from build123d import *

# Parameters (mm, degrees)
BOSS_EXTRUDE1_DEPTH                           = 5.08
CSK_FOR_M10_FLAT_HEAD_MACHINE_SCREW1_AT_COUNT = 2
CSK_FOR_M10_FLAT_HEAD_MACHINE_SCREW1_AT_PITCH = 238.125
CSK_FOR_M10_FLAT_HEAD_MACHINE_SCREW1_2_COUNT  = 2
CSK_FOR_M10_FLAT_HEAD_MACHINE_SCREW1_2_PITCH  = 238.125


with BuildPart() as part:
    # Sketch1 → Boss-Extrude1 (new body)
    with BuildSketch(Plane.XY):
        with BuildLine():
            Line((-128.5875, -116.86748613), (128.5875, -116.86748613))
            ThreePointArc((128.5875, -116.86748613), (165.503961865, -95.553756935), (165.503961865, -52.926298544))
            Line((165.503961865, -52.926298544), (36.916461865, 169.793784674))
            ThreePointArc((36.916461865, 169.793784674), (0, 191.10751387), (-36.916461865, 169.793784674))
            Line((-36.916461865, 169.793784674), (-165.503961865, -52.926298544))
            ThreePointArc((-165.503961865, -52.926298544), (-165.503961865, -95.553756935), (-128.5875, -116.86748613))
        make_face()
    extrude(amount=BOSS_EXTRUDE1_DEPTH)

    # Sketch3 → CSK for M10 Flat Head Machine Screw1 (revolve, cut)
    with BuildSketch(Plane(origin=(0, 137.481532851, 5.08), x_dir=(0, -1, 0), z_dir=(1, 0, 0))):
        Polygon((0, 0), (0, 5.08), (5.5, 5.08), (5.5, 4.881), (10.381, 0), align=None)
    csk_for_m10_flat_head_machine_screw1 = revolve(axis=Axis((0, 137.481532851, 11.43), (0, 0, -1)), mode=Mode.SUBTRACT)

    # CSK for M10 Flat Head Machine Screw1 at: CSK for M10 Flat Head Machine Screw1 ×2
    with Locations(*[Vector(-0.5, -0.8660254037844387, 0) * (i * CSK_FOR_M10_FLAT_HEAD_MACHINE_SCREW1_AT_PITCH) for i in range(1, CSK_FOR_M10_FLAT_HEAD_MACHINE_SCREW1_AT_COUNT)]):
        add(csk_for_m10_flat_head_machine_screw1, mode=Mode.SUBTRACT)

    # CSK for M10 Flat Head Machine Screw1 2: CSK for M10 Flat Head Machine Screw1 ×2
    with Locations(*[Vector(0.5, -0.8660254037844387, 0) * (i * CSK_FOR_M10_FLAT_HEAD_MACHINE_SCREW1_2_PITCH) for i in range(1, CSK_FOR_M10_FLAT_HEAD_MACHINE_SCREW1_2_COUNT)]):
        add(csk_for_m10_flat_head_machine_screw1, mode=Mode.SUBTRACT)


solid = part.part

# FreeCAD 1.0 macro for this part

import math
import FreeCAD as App
import Part
import Sketcher

V = App.Vector
Q = App.Units.Quantity


def add_polygon(sketch, points):
    """Adds a closed chain of lines whose ends are joined by coincident constraints."""
    first, n = sketch.GeometryCount, len(points)
    for a, b in zip(points, points[1:] + points[:1]):
        sketch.addGeometry(Part.LineSegment(App.Vector(*a, 0), App.Vector(*b, 0)), False)
    for i in range(n):
        sketch.addConstraint(Sketcher.Constraint("Coincident", first + i, 2, first + (i + 1) % n, 1))

doc = App.newDocument("Part")
body = doc.addObject("PartDesign::Body", "Body")

# Sketch on XY plane
sketch1 = doc.addObject("Sketcher::SketchObject", "Sketch")
body.addObject(sketch1)
sketch1.AttachmentSupport = (doc.XY_Plane, [""])
sketch1.MapMode = "FlatFace"
sketch1.addGeometry([
    Part.LineSegment(V(-128.5875, -116.867486, 0), V(128.5875, -116.867486, 0)),  # 0
    Part.ArcOfCircle(Part.Circle(V(128.5875, -74.240028, 0), V(0, 0, 1), 42.627458), math.radians(-90), math.radians(30)),  # 1
    Part.LineSegment(V(165.503962, -52.926299, 0), V(36.916462, 169.793785, 0)),  # 2
    Part.ArcOfCircle(Part.Circle(V(0, 148.480055, 0), V(0, 0, 1), 42.627458), math.radians(30), math.radians(150)),  # 3
    Part.LineSegment(V(-36.916462, 169.793785, 0), V(-165.503962, -52.926299, 0)),  # 4
    Part.ArcOfCircle(Part.Circle(V(-128.5875, -74.240028, 0), V(0, 0, 1), 42.627458), math.radians(150), math.radians(270)),  # 5
], False)
sketch1.addConstraint([
    Sketcher.Constraint("Tangent", 0, 2, 1, 1),
    Sketcher.Constraint("Tangent", 1, 2, 2, 1),
    Sketcher.Constraint("Tangent", 2, 2, 3, 1),
    Sketcher.Constraint("Tangent", 3, 2, 4, 1),
    Sketcher.Constraint("Tangent", 4, 2, 5, 1),
    Sketcher.Constraint("Tangent", 5, 2, 0, 1),
    Sketcher.Constraint("Horizontal", 0),
    Sketcher.Constraint("Equal", 1, 3),
    Sketcher.Constraint("Equal", 3, 5),
    Sketcher.Constraint("Symmetric", 2, 2, 3, 2, -2),
    Sketcher.Constraint("Angle", 2, Q("120 deg")),
    Sketcher.Constraint("DistanceX", 0, 1, 0, 2, Q("10.125 in")),
    Sketcher.Constraint("Radius", 1, 42.627458),
    Sketcher.Constraint("DistanceY", 1, 2, -1, 1, 52.926299),
])
pad1 = doc.addObject("PartDesign::Pad", "Pad")
body.addObject(pad1)
pad1.Profile = sketch1
pad1.Length = Q("0.2 in")

# Sketch on YZ plane
sketch2 = doc.addObject("Sketcher::SketchObject", "Sketch001")
body.addObject(sketch2)
sketch2.AttachmentSupport = (doc.YZ_Plane, [""])
sketch2.MapMode = "FlatFace"
add_polygon(sketch2, [(137.481533, 0), (137.481533, 5.08), (127.100533, 5.08), (131.981533, 0.199), (131.981533, 0)])  # lines 0-4
sketch2.addGeometry(Part.LineSegment(V(137.481533, 5.08, 0), V(137.481533, 0, 0)), True)  # axis
sketch2.addConstraint([
    Sketcher.Constraint("Vertical", 0),
    Sketcher.Constraint("Horizontal", 1),
    Sketcher.Constraint("Vertical", 3),
    Sketcher.Constraint("Horizontal", 4),
    Sketcher.Constraint("Vertical", 5),
    Sketcher.Constraint("Coincident", 5, 1, 0, 2),
    Sketcher.Constraint("PointOnObject", 3, 2, -1),
    Sketcher.Constraint("PointOnObject", 5, 2, -1),
    Sketcher.Constraint("DistanceY", 0, 1, 0, 2, Q("0.2 in")),
    Sketcher.Constraint("Angle", 2, Q("-45 deg")),
    Sketcher.Constraint("DistanceX", 1, 2, 1, 1, 10.381),
    Sketcher.Constraint("DistanceX", 4, 1, 4, 2, 5.5),
    Sketcher.Constraint("DistanceX", -1, 1, 0, 2, 137.481533),
])
groove = doc.addObject("PartDesign::Groove", "Groove")
body.addObject(groove)
groove.Profile = sketch2
groove.ReferenceAxis = (sketch2, ["Axis0"])
groove.Angle = 360
doc.recompute()

datumline = doc.addObject("PartDesign::Line", "DatumLine")
body.addObject(datumline)
datumline.Placement = App.Placement(V(0, 0, 0), App.Rotation(V(0, 0, 1), V(-0.5, -0.866025404, 0)))
linearpattern = doc.addObject("PartDesign::LinearPattern", "LinearPattern")
body.addObject(linearpattern)
linearpattern.Originals = [groove]
linearpattern.Direction = (datumline, [""])
linearpattern.Mode = "offset"
linearpattern.Offset = Q("9.375 in")
linearpattern.Occurrences = 2
body.Tip = linearpattern
doc.recompute()

datumline2 = doc.addObject("PartDesign::Line", "DatumLine001")
body.addObject(datumline2)
datumline2.Placement = App.Placement(V(0, 0, 0), App.Rotation(V(0, 0, 1), V(0.5, -0.866025404, 0)))
linearpattern2 = doc.addObject("PartDesign::LinearPattern", "LinearPattern001")
body.addObject(linearpattern2)
linearpattern2.Originals = [groove]
linearpattern2.Direction = (datumline2, [""])
linearpattern2.Mode = "offset"
linearpattern2.Offset = Q("9.375 in")
linearpattern2.Occurrences = 2
body.Tip = linearpattern2

doc.recompute()
